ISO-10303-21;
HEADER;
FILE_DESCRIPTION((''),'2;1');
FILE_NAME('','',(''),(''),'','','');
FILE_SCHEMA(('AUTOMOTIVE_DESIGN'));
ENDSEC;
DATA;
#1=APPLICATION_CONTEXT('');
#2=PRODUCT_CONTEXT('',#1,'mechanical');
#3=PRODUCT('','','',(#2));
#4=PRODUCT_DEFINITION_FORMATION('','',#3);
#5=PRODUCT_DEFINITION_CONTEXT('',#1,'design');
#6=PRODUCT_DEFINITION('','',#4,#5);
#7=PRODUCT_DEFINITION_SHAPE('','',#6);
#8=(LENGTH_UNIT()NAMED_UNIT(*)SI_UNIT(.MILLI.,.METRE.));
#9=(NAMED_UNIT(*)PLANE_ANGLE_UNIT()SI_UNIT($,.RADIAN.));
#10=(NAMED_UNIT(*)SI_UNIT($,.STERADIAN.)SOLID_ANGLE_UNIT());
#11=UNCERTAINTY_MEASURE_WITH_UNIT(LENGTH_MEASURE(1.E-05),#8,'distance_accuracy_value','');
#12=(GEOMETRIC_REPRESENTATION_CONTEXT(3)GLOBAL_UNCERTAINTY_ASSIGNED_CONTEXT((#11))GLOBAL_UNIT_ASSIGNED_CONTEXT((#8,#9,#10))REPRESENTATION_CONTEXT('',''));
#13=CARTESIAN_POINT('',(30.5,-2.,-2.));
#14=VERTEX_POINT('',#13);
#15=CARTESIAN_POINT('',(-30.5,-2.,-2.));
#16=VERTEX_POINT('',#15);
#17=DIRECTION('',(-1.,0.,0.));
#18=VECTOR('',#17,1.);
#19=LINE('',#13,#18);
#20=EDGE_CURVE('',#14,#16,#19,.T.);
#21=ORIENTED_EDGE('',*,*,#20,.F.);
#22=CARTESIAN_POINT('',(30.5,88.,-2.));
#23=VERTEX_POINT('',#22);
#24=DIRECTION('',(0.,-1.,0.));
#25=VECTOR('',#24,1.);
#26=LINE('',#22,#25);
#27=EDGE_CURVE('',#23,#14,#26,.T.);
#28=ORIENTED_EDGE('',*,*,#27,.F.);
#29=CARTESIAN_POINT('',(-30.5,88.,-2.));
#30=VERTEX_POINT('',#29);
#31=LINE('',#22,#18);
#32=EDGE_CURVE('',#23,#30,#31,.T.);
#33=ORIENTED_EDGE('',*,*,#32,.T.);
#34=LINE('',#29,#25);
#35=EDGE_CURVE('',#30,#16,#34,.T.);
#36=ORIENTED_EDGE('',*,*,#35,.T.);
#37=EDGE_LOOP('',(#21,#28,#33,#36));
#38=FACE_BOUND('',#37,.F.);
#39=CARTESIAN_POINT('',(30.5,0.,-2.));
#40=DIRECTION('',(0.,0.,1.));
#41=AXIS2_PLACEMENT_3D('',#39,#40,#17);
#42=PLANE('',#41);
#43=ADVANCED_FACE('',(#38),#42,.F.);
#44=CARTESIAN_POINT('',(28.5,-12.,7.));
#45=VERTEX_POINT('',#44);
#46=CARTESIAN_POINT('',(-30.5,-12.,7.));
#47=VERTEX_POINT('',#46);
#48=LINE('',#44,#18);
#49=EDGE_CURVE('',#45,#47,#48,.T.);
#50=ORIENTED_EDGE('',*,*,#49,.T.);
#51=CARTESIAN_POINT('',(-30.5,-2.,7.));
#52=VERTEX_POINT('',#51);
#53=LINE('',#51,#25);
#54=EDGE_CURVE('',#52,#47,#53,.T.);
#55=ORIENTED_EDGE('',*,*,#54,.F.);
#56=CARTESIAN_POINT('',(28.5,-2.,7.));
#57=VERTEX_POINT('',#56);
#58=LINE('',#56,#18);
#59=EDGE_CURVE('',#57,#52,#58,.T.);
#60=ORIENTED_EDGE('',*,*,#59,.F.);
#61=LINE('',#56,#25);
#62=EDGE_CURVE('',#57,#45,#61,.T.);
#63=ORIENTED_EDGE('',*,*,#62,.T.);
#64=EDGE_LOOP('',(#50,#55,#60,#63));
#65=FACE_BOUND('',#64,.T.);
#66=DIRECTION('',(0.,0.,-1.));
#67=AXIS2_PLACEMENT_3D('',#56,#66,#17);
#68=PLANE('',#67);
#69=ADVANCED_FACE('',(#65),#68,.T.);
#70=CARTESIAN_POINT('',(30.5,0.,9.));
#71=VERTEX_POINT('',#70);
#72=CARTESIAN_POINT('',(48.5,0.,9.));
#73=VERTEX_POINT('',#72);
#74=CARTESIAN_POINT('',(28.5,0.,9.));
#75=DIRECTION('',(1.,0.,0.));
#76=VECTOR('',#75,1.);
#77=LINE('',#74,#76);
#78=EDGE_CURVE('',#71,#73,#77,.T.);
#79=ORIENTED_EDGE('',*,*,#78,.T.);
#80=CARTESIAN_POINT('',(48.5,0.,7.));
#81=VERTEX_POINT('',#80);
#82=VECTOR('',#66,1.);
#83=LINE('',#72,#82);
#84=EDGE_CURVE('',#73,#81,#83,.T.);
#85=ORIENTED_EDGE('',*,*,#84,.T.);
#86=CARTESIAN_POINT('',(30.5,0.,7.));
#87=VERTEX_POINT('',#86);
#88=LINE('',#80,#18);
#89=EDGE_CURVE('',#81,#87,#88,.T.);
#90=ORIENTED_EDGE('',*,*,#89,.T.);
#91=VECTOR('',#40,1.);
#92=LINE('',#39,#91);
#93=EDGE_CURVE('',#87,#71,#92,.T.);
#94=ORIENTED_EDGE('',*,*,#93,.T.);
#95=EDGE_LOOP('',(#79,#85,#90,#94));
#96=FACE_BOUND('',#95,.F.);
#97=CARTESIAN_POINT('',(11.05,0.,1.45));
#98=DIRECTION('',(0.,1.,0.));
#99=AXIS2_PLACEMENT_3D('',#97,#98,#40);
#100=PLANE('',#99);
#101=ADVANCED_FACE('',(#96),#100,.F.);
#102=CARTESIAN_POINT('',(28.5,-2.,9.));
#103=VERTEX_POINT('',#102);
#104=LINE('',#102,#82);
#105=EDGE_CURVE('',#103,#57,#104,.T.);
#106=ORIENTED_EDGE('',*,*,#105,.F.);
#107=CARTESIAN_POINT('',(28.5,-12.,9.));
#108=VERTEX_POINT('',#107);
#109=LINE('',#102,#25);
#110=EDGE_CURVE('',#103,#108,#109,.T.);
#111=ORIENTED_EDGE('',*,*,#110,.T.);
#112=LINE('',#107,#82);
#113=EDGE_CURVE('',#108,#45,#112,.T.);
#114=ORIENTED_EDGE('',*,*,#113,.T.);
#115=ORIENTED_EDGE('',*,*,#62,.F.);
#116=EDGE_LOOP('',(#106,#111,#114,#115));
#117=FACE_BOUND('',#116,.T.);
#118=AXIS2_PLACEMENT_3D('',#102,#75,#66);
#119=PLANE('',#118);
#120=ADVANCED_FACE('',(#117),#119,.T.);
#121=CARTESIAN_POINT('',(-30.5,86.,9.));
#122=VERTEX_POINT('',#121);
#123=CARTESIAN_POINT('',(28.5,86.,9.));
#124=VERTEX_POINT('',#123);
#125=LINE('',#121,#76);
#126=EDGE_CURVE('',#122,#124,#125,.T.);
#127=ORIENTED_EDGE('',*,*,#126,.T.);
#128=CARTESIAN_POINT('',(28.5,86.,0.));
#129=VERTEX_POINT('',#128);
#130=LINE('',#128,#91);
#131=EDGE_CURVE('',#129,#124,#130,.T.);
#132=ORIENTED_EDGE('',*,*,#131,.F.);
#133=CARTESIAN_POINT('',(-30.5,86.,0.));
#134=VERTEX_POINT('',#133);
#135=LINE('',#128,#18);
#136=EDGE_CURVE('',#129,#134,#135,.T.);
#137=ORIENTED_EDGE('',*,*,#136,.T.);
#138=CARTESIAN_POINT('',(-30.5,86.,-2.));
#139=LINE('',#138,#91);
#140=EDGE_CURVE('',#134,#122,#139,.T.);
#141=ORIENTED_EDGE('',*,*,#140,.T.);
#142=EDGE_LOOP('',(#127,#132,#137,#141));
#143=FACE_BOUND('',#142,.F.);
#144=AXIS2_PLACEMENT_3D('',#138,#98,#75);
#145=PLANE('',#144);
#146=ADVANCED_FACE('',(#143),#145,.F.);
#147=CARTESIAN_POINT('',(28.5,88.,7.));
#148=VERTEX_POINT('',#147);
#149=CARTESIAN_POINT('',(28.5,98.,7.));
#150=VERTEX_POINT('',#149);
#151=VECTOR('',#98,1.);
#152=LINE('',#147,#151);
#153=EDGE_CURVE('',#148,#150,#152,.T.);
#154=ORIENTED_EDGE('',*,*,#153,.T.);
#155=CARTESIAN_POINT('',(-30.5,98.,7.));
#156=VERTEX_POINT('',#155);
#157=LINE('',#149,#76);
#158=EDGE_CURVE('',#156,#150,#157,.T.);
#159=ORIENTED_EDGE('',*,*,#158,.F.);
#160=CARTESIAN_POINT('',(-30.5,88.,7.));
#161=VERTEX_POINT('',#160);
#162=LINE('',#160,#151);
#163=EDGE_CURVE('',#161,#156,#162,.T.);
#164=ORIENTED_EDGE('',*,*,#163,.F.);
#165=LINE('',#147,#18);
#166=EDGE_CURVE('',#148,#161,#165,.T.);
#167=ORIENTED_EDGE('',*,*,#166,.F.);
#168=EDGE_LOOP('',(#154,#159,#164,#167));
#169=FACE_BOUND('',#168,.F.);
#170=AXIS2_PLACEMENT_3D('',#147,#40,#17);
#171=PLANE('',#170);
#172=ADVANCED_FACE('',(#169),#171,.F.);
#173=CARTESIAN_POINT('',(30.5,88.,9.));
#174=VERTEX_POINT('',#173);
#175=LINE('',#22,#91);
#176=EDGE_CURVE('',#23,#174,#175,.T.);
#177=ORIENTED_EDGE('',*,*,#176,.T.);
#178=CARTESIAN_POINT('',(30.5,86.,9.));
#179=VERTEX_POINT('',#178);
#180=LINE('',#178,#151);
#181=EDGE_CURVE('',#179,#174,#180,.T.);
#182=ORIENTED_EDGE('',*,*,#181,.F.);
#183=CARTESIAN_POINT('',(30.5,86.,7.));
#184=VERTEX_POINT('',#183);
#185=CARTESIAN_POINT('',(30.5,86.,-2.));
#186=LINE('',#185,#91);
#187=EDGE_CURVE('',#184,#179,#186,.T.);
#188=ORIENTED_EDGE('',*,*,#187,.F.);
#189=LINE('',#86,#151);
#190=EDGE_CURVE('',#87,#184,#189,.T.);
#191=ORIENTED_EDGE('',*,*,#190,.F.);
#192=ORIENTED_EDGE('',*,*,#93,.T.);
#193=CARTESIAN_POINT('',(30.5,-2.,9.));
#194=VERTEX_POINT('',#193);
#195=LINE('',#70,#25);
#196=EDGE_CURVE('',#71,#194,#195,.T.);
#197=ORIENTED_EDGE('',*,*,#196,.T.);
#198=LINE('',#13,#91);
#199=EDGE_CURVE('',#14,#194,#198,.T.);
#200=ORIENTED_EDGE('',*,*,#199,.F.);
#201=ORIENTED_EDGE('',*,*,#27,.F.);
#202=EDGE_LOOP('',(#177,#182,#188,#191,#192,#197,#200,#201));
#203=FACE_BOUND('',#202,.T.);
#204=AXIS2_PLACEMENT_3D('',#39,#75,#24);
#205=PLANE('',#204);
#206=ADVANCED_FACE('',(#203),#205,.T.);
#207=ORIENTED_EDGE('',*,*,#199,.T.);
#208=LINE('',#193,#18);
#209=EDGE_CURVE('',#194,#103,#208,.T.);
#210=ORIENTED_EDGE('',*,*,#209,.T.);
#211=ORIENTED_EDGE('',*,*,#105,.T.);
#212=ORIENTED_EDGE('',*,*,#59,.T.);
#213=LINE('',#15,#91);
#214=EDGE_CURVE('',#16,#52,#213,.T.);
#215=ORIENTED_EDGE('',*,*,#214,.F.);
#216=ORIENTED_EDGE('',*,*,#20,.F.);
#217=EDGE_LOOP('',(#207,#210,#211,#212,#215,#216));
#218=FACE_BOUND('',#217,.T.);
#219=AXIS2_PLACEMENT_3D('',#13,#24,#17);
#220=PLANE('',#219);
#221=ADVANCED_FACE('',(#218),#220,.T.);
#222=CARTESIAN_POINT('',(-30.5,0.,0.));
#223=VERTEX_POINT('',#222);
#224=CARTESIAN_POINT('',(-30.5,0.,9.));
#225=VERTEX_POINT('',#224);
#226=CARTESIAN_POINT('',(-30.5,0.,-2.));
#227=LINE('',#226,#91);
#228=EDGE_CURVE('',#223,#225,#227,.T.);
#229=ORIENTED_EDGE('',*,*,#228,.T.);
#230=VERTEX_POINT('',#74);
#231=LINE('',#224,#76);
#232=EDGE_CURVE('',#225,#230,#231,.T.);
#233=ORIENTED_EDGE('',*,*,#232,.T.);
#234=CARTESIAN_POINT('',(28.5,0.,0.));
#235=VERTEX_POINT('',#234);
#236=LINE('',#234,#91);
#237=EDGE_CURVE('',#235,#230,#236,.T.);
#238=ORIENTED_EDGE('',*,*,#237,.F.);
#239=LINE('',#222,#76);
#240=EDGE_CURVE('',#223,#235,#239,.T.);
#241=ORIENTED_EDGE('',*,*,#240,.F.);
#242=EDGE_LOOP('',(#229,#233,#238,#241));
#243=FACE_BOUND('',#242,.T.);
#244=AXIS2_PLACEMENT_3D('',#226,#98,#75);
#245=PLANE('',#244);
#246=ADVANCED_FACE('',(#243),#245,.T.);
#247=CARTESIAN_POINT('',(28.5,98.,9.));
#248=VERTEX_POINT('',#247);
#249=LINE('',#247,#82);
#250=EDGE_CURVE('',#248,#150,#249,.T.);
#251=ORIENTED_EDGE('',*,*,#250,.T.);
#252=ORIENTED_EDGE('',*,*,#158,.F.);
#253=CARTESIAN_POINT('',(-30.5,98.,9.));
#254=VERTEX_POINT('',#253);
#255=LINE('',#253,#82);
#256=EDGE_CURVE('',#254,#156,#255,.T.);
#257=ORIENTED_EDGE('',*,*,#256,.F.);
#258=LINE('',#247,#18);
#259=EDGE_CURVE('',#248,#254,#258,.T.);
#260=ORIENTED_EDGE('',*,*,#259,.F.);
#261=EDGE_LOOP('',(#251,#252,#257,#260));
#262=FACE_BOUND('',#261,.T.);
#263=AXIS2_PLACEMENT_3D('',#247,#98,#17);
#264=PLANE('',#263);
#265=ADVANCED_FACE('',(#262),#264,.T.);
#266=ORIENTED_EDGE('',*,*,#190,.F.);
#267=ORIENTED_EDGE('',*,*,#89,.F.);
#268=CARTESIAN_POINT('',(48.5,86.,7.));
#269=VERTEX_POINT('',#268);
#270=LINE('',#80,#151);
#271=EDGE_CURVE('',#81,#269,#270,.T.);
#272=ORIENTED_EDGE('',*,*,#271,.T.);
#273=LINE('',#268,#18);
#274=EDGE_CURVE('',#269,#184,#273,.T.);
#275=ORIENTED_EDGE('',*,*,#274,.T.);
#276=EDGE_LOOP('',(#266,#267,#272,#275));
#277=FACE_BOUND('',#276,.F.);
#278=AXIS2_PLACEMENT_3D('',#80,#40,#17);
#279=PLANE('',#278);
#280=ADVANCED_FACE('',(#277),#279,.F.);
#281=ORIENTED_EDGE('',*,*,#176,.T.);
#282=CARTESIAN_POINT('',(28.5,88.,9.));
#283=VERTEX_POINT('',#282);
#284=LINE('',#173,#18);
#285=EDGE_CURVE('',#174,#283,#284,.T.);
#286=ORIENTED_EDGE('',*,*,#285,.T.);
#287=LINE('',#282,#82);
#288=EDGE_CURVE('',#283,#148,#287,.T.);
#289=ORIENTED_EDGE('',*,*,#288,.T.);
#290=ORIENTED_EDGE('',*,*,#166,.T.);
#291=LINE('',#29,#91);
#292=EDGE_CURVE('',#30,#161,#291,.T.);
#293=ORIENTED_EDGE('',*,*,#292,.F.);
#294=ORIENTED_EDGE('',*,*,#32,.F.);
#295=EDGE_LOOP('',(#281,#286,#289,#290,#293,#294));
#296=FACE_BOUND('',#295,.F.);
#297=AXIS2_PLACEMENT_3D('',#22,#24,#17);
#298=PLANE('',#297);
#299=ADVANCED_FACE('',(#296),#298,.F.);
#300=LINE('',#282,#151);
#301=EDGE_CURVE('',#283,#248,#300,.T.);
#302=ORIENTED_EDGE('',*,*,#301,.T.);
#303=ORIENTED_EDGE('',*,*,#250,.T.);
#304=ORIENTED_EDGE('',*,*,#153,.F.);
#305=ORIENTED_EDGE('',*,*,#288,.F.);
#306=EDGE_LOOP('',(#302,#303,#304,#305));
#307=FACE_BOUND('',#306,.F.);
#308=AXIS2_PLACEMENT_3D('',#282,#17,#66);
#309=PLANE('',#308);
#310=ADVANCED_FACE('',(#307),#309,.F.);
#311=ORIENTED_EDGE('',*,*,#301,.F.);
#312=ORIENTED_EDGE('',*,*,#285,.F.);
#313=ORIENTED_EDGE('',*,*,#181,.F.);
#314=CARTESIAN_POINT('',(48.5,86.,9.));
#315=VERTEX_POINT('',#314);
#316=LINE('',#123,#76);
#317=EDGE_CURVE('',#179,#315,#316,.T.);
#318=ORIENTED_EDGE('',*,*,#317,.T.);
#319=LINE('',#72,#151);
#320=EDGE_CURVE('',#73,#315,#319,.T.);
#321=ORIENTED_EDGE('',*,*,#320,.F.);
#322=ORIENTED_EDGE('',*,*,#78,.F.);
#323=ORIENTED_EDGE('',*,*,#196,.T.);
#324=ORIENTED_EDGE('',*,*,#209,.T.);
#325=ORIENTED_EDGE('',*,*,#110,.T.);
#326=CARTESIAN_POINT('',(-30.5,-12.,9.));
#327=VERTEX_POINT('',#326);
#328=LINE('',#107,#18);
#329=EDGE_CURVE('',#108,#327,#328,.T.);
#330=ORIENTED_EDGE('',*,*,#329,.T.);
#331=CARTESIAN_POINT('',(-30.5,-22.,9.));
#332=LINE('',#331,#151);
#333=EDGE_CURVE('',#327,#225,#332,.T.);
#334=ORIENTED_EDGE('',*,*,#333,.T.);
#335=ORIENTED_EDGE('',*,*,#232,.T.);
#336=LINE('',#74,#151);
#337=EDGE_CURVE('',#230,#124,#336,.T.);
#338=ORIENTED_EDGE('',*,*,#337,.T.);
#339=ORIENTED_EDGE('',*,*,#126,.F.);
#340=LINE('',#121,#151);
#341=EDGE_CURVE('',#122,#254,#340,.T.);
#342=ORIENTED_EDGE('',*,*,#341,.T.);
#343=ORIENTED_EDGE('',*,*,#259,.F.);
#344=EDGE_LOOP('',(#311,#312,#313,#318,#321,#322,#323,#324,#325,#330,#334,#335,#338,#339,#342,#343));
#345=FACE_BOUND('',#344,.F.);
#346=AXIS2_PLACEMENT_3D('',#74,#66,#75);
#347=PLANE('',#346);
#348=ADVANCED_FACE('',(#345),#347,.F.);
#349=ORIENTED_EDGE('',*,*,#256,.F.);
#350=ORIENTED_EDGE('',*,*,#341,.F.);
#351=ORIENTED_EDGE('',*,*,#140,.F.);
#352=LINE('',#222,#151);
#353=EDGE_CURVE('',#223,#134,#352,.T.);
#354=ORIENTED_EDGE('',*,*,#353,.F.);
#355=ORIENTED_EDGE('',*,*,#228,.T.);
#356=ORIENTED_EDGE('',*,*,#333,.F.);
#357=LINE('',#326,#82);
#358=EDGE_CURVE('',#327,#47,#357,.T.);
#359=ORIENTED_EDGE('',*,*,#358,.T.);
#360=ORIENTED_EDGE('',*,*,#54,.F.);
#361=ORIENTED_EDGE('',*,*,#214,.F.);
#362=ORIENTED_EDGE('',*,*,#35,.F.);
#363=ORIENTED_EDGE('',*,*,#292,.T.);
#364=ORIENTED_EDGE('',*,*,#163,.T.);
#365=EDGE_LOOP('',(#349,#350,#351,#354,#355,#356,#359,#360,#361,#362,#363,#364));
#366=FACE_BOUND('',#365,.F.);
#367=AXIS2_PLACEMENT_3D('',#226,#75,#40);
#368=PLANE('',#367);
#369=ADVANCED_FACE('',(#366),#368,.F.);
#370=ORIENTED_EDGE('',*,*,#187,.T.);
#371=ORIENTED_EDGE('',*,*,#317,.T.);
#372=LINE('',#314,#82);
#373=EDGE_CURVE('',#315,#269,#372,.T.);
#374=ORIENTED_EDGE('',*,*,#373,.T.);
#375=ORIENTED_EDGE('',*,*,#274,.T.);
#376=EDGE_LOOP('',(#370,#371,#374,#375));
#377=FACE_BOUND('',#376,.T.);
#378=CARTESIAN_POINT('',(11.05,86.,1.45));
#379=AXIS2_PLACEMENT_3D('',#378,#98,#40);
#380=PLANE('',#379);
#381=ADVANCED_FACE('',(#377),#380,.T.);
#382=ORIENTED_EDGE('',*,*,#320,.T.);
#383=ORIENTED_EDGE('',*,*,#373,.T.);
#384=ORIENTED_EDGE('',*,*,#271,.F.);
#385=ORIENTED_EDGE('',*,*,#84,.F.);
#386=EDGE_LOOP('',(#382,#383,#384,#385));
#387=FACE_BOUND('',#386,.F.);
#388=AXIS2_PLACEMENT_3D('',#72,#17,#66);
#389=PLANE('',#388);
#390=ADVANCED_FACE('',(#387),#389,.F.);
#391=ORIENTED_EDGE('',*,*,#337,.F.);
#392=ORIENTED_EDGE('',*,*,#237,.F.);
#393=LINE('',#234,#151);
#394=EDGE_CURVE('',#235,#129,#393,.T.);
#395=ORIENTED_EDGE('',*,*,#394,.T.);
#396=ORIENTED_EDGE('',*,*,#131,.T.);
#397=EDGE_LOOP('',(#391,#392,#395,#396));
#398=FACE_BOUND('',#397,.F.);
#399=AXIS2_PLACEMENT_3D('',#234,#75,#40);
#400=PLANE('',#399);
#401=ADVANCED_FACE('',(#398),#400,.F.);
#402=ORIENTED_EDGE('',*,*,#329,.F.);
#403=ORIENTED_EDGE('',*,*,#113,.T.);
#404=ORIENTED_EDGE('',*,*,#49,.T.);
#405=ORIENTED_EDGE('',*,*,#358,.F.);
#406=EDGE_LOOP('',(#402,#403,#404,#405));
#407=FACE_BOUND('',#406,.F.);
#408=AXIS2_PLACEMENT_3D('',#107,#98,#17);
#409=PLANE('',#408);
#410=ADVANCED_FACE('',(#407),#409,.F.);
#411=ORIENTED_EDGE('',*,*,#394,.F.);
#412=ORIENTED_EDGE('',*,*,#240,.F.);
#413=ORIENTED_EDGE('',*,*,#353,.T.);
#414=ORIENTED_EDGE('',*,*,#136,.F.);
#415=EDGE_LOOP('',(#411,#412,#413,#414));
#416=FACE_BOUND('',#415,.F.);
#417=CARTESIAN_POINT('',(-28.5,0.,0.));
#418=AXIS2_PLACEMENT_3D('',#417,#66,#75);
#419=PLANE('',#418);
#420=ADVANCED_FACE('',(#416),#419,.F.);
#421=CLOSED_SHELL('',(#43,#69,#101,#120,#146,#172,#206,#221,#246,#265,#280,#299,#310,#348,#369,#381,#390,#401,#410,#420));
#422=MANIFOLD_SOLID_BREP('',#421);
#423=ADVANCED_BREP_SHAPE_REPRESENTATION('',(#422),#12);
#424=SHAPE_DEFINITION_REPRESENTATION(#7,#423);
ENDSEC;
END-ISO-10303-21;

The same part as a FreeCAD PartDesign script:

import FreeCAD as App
import Part
import Sketcher

V = App.Vector


def add_polygon(sketch, points):
    """Adds a closed chain of lines whose ends are joined by coincident constraints."""
    first, n = sketch.GeometryCount, len(points)
    for a, b in zip(points, points[1:] + points[:1]):
        sketch.addGeometry(Part.LineSegment(App.Vector(*a, 0), App.Vector(*b, 0)), False)
    for i in range(n):
        sketch.addConstraint(Sketcher.Constraint("Coincident", first + i, 2, first + (i + 1) % n, 1))

doc = App.newDocument("Part")
body = doc.addObject("PartDesign::Body", "Body")

# Sketch on XZ plane
sketch1 = body.newObject("Sketcher::SketchObject", "Sketch")
sketch1.AttachmentSupport = (doc.getObject("XZ_Plane"), [""])
sketch1.MapMode = "FlatFace"
add_polygon(sketch1, [(28.5, 0), (-30.5, 0), (-30.5, -2), (30.5, -2), (30.5, 7), (48.5, 7), (48.5, 9), (28.5, 9)])  # lines 0-7
sketch1.addConstraint([
    Sketcher.Constraint("Horizontal", 0),
    Sketcher.Constraint("Vertical", 1),
    Sketcher.Constraint("Horizontal", 2),
    Sketcher.Constraint("Vertical", 3),
    Sketcher.Constraint("Horizontal", 4),
    Sketcher.Constraint("Vertical", 5),
    Sketcher.Constraint("Horizontal", 6),
    Sketcher.Constraint("Vertical", 7),
    Sketcher.Constraint("PointOnObject", 0, 2, -1),
    Sketcher.Constraint("Equal", 1, 5),
    Sketcher.Constraint("DistanceX", 0, 2, 0, 1, 59.0),
    Sketcher.Constraint("DistanceX", 2, 1, 2, 2, 61.0),
    Sketcher.Constraint("DistanceX", 4, 1, 4, 2, 18.0),
    Sketcher.Constraint("DistanceY", 1, 2, 1, 1, 2.0),
    Sketcher.Constraint("DistanceY", 3, 1, 3, 2, 9.0),
    Sketcher.Constraint("DistanceX", 0, 2, -1, 1, 30.5),
])
pad1 = body.newObject("PartDesign::Pad", "Pad")
pad1.Profile = sketch1
pad1.Length = 86
pad1.Reversed = True

# Sketch on XY plane
sketch2 = body.newObject("Sketcher::SketchObject", "Sketch001")
sketch2.AttachmentSupport = (doc.getObject("XY_Plane"), [""])
sketch2.MapMode = "FlatFace"
sketch2.AttachmentOffset = App.Placement(V(0, 0, -2), App.Rotation())
add_polygon(sketch2, [(30.5, 86), (-30.5, 86), (-30.5, 88), (30.5, 88)])  # lines 0-3
add_polygon(sketch2, [(30.5, 0), (30.5, -2), (-30.5, -2), (-30.5, 0)])  # lines 4-7
sketch2.addConstraint([
    Sketcher.Constraint("Horizontal", 0),
    Sketcher.Constraint("Vertical", 1),
    Sketcher.Constraint("Horizontal", 2),
    Sketcher.Constraint("Vertical", 3),
    Sketcher.Constraint("Vertical", 4),
    Sketcher.Constraint("Horizontal", 5),
    Sketcher.Constraint("Vertical", 6),
    Sketcher.Constraint("Horizontal", 7),
    Sketcher.Constraint("Symmetric", 6, 2, 7, 2, -1, 1),
    Sketcher.Constraint("Vertical", 3, 2, 4, 2),
    Sketcher.Constraint("Vertical", 1, 2, 5, 2),
    Sketcher.Constraint("Equal", 3, 4),
    Sketcher.Constraint("DistanceX", 0, 2, 0, 1, 61.0),
    Sketcher.Constraint("DistanceY", 1, 1, 1, 2, 2.0),
    Sketcher.Constraint("DistanceY", -1, 1, 0, 2, 86.0),
])
pad2 = body.newObject("PartDesign::Pad", "Pad001")
pad2.Profile = sketch2
pad2.Length = 11

# Sketch on XZ plane
sketch3 = body.newObject("Sketcher::SketchObject", "Sketch002")
sketch3.AttachmentSupport = (doc.getObject("XZ_Plane"), [""])
sketch3.MapMode = "FlatFace"
sketch3.AttachmentOffset = App.Placement(V(0, 0, 2), App.Rotation())
add_polygon(sketch3, [(-30.5, 7), (28.5, 7), (28.5, 9), (-30.5, 9)])  # lines 0-3
sketch3.addConstraint([
    Sketcher.Constraint("Horizontal", 0),
    Sketcher.Constraint("Vertical", 1),
    Sketcher.Constraint("Horizontal", 2),
    Sketcher.Constraint("Vertical", 3),
    Sketcher.Constraint("DistanceX", 0, 1, 0, 2, 59.0),
    Sketcher.Constraint("DistanceY", 1, 1, 1, 2, 2.0),
    Sketcher.Constraint("DistanceY", -1, 1, 0, 2, 7.0),
    Sketcher.Constraint("DistanceX", -1, 1, 0, 2, 28.5),
])
pad3 = body.newObject("PartDesign::Pad", "Pad002")
pad3.Profile = sketch3
pad3.Length = 20

# Sketch on XZ plane
sketch4 = body.newObject("Sketcher::SketchObject", "Sketch003")
sketch4.AttachmentSupport = (doc.getObject("XZ_Plane"), [""])
sketch4.MapMode = "FlatFace"
sketch4.AttachmentOffset = App.Placement(V(0, 0, -88), App.Rotation())
add_polygon(sketch4, [(28.5, 9), (28.5, 7), (-30.5, 7), (-30.5, 9)])  # lines 0-3
sketch4.addConstraint([
    Sketcher.Constraint("Vertical", 0),
    Sketcher.Constraint("Horizontal", 1),
    Sketcher.Constraint("Vertical", 2),
    Sketcher.Constraint("Horizontal", 3),
    Sketcher.Constraint("DistanceX", 1, 2, 1, 1, 59.0),
    Sketcher.Constraint("DistanceY", 0, 2, 0, 1, 2.0),
    Sketcher.Constraint("DistanceY", -1, 1, 0, 2, 7.0),
    Sketcher.Constraint("DistanceX", -1, 1, 0, 2, 28.5),
])
pad4 = body.newObject("PartDesign::Pad", "Pad003")
pad4.Profile = sketch4
pad4.Length = 20
pad4.Reversed = True

# Sketch on XY plane
sketch5 = body.newObject("Sketcher::SketchObject", "Sketch004")
sketch5.AttachmentSupport = (doc.getObject("XY_Plane"), [""])
sketch5.MapMode = "FlatFace"
sketch5.AttachmentOffset = App.Placement(V(0, 0, 9), App.Rotation())
add_polygon(sketch5, [(28, -22), (28, -12), (-30, -12), (-30, -22)])  # lines 0-3
add_polygon(sketch5, [(-30, 98), (28, 98), (28, 108), (-30, 108)])  # lines 4-7
sketch5.addConstraint([
    Sketcher.Constraint("Vertical", 0),
    Sketcher.Constraint("Horizontal", 1),
    Sketcher.Constraint("Vertical", 2),
    Sketcher.Constraint("Horizontal", 3),
    Sketcher.Constraint("Horizontal", 4),
    Sketcher.Constraint("Vertical", 5),
    Sketcher.Constraint("Horizontal", 6),
    Sketcher.Constraint("Vertical", 7),
    Sketcher.Constraint("Vertical", 3, 2, 4, 2),
    Sketcher.Constraint("Vertical", 2, 2, 6, 2),
    Sketcher.Constraint("Equal", 2, 5),
    Sketcher.Constraint("DistanceX", 1, 2, 1, 1, 59.0),
    Sketcher.Constraint("DistanceY", 0, 1, 0, 2, 10.0),
    Sketcher.Constraint("DistanceY", 0, 2, -1, 1, 12.0),
    Sketcher.Constraint("DistanceY", -1, 1, 4, 2, 98.0),
    Sketcher.Constraint("DistanceX", -1, 1, 0, 2, 28.5),
])
pocket1 = body.newObject("PartDesign::Pocket", "Pocket")
pocket1.Profile = sketch5
pocket1.Type = "UpToFirst"

doc.recompute()
